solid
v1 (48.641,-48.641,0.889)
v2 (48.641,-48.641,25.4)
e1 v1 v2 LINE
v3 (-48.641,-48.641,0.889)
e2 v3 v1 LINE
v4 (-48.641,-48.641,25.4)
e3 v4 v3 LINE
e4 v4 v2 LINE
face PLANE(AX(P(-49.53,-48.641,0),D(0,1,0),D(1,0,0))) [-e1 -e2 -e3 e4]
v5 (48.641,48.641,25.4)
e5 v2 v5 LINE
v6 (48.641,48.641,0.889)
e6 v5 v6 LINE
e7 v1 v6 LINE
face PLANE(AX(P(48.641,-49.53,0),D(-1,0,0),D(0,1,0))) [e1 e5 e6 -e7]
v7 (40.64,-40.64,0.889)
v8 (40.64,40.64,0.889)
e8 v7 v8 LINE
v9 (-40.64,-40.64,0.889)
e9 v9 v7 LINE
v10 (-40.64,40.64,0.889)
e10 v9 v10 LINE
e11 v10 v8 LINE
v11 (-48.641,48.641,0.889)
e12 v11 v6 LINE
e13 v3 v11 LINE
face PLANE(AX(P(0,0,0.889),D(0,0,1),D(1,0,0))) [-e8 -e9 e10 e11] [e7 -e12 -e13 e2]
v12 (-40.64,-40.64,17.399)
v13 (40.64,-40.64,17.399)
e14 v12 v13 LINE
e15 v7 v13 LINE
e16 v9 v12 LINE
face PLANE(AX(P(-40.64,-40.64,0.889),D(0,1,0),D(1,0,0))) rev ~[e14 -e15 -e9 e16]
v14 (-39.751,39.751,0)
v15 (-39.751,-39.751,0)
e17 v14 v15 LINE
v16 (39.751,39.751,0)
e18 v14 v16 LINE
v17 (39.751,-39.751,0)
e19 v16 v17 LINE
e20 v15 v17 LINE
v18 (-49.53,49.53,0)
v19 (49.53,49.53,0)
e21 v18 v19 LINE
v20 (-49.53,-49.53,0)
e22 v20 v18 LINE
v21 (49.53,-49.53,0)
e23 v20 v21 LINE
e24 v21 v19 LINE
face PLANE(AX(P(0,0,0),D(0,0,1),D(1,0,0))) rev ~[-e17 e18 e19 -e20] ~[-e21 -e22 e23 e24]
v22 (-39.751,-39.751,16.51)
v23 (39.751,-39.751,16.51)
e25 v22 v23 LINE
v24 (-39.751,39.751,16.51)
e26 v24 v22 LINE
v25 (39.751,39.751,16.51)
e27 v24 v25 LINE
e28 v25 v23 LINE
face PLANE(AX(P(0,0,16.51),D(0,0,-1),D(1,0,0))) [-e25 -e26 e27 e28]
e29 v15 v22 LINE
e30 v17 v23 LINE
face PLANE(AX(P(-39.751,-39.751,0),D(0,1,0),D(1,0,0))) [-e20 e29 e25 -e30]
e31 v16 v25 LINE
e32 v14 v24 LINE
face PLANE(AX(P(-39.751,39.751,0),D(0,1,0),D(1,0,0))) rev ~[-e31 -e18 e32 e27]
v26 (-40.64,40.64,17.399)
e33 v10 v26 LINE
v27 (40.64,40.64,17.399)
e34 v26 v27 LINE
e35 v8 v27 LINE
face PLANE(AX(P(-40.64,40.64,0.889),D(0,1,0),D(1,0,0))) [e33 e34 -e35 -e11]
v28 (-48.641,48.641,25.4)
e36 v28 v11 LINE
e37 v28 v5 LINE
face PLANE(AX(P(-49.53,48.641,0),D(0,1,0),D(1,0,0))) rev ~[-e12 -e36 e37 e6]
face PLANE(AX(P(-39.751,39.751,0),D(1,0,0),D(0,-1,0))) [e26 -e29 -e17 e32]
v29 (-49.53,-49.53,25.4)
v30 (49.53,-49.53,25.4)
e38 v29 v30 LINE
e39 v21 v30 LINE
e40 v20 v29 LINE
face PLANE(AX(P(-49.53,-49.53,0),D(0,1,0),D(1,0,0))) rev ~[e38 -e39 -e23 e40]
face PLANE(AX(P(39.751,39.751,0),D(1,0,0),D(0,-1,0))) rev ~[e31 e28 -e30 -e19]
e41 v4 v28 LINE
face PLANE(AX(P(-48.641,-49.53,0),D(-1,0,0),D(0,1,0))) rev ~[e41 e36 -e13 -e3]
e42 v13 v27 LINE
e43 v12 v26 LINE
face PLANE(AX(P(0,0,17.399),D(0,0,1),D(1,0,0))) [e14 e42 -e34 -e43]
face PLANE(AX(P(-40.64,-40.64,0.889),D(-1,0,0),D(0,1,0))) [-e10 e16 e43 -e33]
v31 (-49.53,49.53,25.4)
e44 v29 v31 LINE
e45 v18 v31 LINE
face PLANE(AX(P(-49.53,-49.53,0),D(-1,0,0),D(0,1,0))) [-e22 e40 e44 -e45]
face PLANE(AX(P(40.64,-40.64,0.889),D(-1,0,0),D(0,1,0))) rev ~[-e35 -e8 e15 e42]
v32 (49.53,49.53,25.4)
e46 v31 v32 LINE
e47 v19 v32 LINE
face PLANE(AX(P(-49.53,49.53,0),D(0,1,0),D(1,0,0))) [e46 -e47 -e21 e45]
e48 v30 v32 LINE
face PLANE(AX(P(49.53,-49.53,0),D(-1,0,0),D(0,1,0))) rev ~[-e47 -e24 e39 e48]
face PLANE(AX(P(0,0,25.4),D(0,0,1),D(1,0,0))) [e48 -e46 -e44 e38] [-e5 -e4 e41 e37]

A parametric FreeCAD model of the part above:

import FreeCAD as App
import Part
import Sketcher
Q = App.Units.Quantity


def faces_at(feature, points):
    """Names of the faces that lie closest to the given points."""
    faces = feature.Shape.Faces
    near = lambda p: min(range(len(faces)), key=lambda i: faces[i].distToShape(Part.Vertex(*p))[0])
    return sorted({f"Face{near(p) + 1}" for p in points})


def add_polygon(sketch, points):
    """Adds a closed chain of lines whose ends are joined by coincident constraints."""
    first, n = sketch.GeometryCount, len(points)
    for a, b in zip(points, points[1:] + points[:1]):
        sketch.addGeometry(Part.LineSegment(App.Vector(*a, 0), App.Vector(*b, 0)), False)
    for i in range(n):
        sketch.addConstraint(Sketcher.Constraint("Coincident", first + i, 2, first + (i + 1) % n, 1))

doc = App.newDocument("Part")
body = doc.addObject("PartDesign::Body", "Body")

# Sketch on XY plane
sketch1 = body.newObject("Sketcher::SketchObject", "Sketch")
sketch1.AttachmentSupport = (doc.getObject("XY_Plane"), [""])
sketch1.MapMode = "FlatFace"
add_polygon(sketch1, [(-50, 50), (-50, -50), (50, -50), (50, 50)])  # lines 0-3
sketch1.addConstraint([
    Sketcher.Constraint("Vertical", 0),
    Sketcher.Constraint("Horizontal", 1),
    Sketcher.Constraint("Vertical", 2),
    Sketcher.Constraint("Horizontal", 3),
    Sketcher.Constraint("Symmetric", 0, 2, 2, 2, -1, 1),
    Sketcher.Constraint("Equal", 3, 0),
    Sketcher.Constraint("DistanceX", 1, 1, 1, 2, Q("3.9 in")),
])
pad1 = body.newObject("PartDesign::Pad", "Pad")
pad1.Profile = sketch1
pad1.Length = Q("1 in")
doc.recompute()

thickness = body.newObject("PartDesign::Thickness", "Thickness")
thickness.Base = (pad1, faces_at(pad1, [(0, 0, 25.4)]))
thickness.Value = Q("0.035 in")
thickness.Reversed = True
thickness.Join = "Arc"

# Sketch on XY plane
sketch2 = body.newObject("Sketcher::SketchObject", "Sketch001")
sketch2.AttachmentSupport = (doc.getObject("XY_Plane"), [""])
sketch2.MapMode = "FlatFace"
sketch2.AttachmentOffset = App.Placement(App.Vector(0, 0, 0.035 * 25.4), App.Rotation())
add_polygon(sketch2, [(-41, 41), (-41, -41), (41, -41), (41, 41)])  # lines 0-3
sketch2.addConstraint([
    Sketcher.Constraint("Vertical", 0),
    Sketcher.Constraint("Horizontal", 1),
    Sketcher.Constraint("Vertical", 2),
    Sketcher.Constraint("Horizontal", 3),
    Sketcher.Constraint("Symmetric", 0, 2, 2, 2, -1, 1),
    Sketcher.Constraint("Equal", 3, 0),
    Sketcher.Constraint("DistanceX", 1, 1, 1, 2, Q("3.2 in")),
])
pad2 = body.newObject("PartDesign::Pad", "Pad001")
pad2.Profile = sketch2
pad2.Length = Q("0.65 in")

# Sketch on XY plane
sketch3 = body.newObject("Sketcher::SketchObject", "Sketch002")
sketch3.AttachmentSupport = (doc.getObject("XY_Plane"), [""])
sketch3.MapMode = "FlatFace"
add_polygon(sketch3, [(-40, -40), (-40, 40), (40, 40), (40, -40)])  # lines 0-3
sketch3.addConstraint([
    Sketcher.Constraint("Vertical", 0),
    Sketcher.Constraint("Horizontal", 1),
    Sketcher.Constraint("Vertical", 2),
    Sketcher.Constraint("Horizontal", 3),
    Sketcher.Constraint("Symmetric", 0, 2, 2, 2, -1, 1),
    Sketcher.Constraint("Equal", 3, 0),
    Sketcher.Constraint("DistanceX", 1, 1, 1, 2, Q("3.13 in")),
])
pocket1 = body.newObject("PartDesign::Pocket", "Pocket")
pocket1.Profile = sketch3
pocket1.Length = Q("0.65 in")
pocket1.Reversed = True

doc.recompute()
